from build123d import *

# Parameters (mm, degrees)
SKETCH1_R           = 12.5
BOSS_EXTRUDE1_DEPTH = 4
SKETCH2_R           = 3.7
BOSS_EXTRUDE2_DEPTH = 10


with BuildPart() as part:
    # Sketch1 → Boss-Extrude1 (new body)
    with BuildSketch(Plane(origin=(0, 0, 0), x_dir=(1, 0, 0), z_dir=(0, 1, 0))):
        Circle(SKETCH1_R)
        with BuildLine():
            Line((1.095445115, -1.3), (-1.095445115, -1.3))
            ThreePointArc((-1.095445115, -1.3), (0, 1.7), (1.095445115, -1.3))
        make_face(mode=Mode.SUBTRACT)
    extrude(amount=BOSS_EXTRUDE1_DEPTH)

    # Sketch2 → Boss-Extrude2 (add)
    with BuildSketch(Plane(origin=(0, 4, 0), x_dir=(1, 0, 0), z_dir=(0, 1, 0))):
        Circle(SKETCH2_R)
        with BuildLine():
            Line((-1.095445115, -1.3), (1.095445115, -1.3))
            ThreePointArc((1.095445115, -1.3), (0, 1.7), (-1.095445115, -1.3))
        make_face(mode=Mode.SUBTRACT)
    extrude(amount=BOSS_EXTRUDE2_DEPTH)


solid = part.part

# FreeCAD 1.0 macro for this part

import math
import FreeCAD as App
import Part
import Sketcher
from FreeCAD import Vector
Q = App.Units.Quantity

doc = App.newDocument("Part")
params = doc.addObject("Spreadsheet::Sheet", "Params")
for row, (alias, value) in enumerate([
    ("sketch1_diameter", "25 mm"),
    ("sketch1_radius", "1.7 mm"),
    ("pad1_length", "4 mm"),
    ("sketch2_diameter", "7.4 mm"),
    ("sketch2_radius", "1.7 mm"),
    ("pad2_length", "10 mm"),
], start=1):
    params.set(f"A{row}", alias)
    params.set(f"B{row}", "=" + value)
    params.setAlias(f"B{row}", alias)

body = doc.addObject("PartDesign::Body", "Body")

# Sketch on XZ plane
sketch1 = body.newObject("Sketcher::SketchObject", "Sketch")
sketch1.AttachmentSupport = (doc.getObject("XZ_Plane"), [""])
sketch1.MapMode = "FlatFace"
sketch1.addGeometry([
    Part.Circle(Vector(0, 0, 0), Vector(0, 0, 1), 12.5),
    Part.ArcOfCircle(Part.Circle(Vector(0, 0, 0), Vector(0, 0, 1), 1.7), math.radians(130), math.radians(410)),
    Part.LineSegment(Vector(1.1, 1.3, 0), Vector(-1.1, 1.3, 0)),
], False)
sketch1.addConstraint([
    Sketcher.Constraint("Coincident", 1, 1, 2, 2),
    Sketcher.Constraint("Coincident", 2, 1, 1, 2),
    Sketcher.Constraint("Horizontal", 2),
    Sketcher.Constraint("Coincident", 0, 3, -1, 1),
    Sketcher.Constraint("Coincident", 1, 3, -1, 1),
    Sketcher.Constraint("Diameter", 0, Q("25 mm")),
    Sketcher.Constraint("Radius", 1, Q("1.7 mm")),
    Sketcher.Constraint("DistanceY", -1, 1, 1, 1, Q("1.3 mm")),
])
sketch1.setExpression("Constraints[5]", "Params.sketch1_diameter")
sketch1.setExpression("Constraints[6]", "Params.sketch1_radius")
pad1 = body.newObject("PartDesign::Pad", "Pad")
pad1.Profile = sketch1
pad1.setExpression("Length", "Params.pad1_length")
pad1.Reversed = True

# Sketch on XZ plane
sketch2 = body.newObject("Sketcher::SketchObject", "Sketch001")
sketch2.AttachmentSupport = (doc.getObject("XZ_Plane"), [""])
sketch2.MapMode = "FlatFace"
sketch2.AttachmentOffset = App.Placement(Vector(0, 0, -4), App.Rotation())
sketch2.addGeometry([
    Part.Circle(Vector(0, 0, 0), Vector(0, 0, 1), 3.7),
    Part.LineSegment(Vector(1.1, 1.3, 0), Vector(-1.1, 1.3, 0)),
    Part.ArcOfCircle(Part.Circle(Vector(0, 0, 0), Vector(0, 0, 1), 1.7), math.radians(130), math.radians(410)),
], False)
sketch2.addConstraint([
    Sketcher.Constraint("Coincident", 1, 1, 2, 2),
    Sketcher.Constraint("Coincident", 2, 1, 1, 2),
    Sketcher.Constraint("Horizontal", 1),
    Sketcher.Constraint("Coincident", 0, 3, -1, 1),
    Sketcher.Constraint("Coincident", 2, 3, -1, 1),
    Sketcher.Constraint("Diameter", 0, Q("7.4 mm")),
    Sketcher.Constraint("Radius", 2, Q("1.7 mm")),
    Sketcher.Constraint("DistanceY", -1, 1, 1, 1, Q("1.3 mm")),
])
sketch2.setExpression("Constraints[5]", "Params.sketch2_diameter")
sketch2.setExpression("Constraints[6]", "Params.sketch2_radius")
pad2 = body.newObject("PartDesign::Pad", "Pad001")
pad2.Profile = sketch2
pad2.setExpression("Length", "Params.pad2_length")
pad2.Reversed = True

doc.recompute()
